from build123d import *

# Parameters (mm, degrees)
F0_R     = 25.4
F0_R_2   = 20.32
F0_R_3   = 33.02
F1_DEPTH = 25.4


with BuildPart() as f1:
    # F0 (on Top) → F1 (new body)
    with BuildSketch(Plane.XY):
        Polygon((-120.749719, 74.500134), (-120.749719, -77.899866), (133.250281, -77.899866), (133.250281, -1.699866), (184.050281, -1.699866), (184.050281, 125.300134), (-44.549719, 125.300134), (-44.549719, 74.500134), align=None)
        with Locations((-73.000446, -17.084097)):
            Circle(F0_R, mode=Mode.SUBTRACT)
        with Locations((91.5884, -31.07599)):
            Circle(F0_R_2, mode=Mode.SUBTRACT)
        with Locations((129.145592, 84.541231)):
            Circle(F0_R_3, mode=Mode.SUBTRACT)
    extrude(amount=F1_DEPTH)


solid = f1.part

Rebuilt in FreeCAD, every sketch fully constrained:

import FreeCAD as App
import Part
import Sketcher
Q = App.Units.Quantity

doc = App.newDocument("Part")
body = doc.addObject("PartDesign::Body", "Body")

# Sketch on XY plane
sketch1 = doc.addObject("Sketcher::SketchObject", "Sketch")
body.addObject(sketch1)
sketch1.AttachmentSupport = (doc.XY_Plane, [""])
sketch1.MapMode = "FlatFace"
sketch1.addGeometry([
    Part.LineSegment(App.Vector(-121, 75, 0), App.Vector(-121, -78, 0)),  # 0
    Part.LineSegment(App.Vector(-121, -78, 0), App.Vector(133, -78, 0)),  # 1
    Part.LineSegment(App.Vector(133, -78, 0), App.Vector(133, -2, 0)),  # 2
    Part.LineSegment(App.Vector(133, -2, 0), App.Vector(184, -2, 0)),  # 3
    Part.LineSegment(App.Vector(184, -2, 0), App.Vector(184, 125, 0)),  # 4
    Part.LineSegment(App.Vector(184, 125, 0), App.Vector(-45, 125, 0)),  # 5
    Part.LineSegment(App.Vector(-45, 125, 0), App.Vector(-45, 75, 0)),  # 6
    Part.LineSegment(App.Vector(-45, 75, 0), App.Vector(-121, 75, 0)),  # 7
    Part.Circle(App.Vector(-73, -17, 0), App.Vector(0, 0, 1), 25),  # 8
    Part.Circle(App.Vector(92, -31, 0), App.Vector(0, 0, 1), 20),  # 9
    Part.Circle(App.Vector(129, 85, 0), App.Vector(0, 0, 1), 33),  # 10
], False)
sketch1.addConstraint([
    Sketcher.Constraint("Coincident", 0, 2, 1, 1),
    Sketcher.Constraint("Coincident", 1, 2, 2, 1),
    Sketcher.Constraint("Coincident", 2, 2, 3, 1),
    Sketcher.Constraint("Coincident", 3, 2, 4, 1),
    Sketcher.Constraint("Coincident", 4, 2, 5, 1),
    Sketcher.Constraint("Coincident", 5, 2, 6, 1),
    Sketcher.Constraint("Coincident", 6, 2, 7, 1),
    Sketcher.Constraint("Coincident", 7, 2, 0, 1),
    Sketcher.Constraint("Vertical", 0),
    Sketcher.Constraint("Horizontal", 1),
    Sketcher.Constraint("Vertical", 2),
    Sketcher.Constraint("Horizontal", 3),
    Sketcher.Constraint("Vertical", 4),
    Sketcher.Constraint("Horizontal", 5),
    Sketcher.Constraint("Vertical", 6),
    Sketcher.Constraint("Horizontal", 7),
    Sketcher.Constraint("Equal", 7, 2),
    Sketcher.Constraint("Equal", 3, 6),
    Sketcher.Constraint("Diameter", 8, Q("2 in")),
    Sketcher.Constraint("Diameter", 9, Q("1.6 in")),
    Sketcher.Constraint("Diameter", 10, Q("2.6 in")),
    Sketcher.Constraint("DistanceX", 1, 1, 1, 2, Q("10 in")),
    Sketcher.Constraint("DistanceX", 3, 1, 3, 2, Q("2 in")),
    Sketcher.Constraint("DistanceX", 5, 2, 5, 1, Q("9 in")),
    Sketcher.Constraint("DistanceY", 0, 2, 0, 1, Q("6 in")),
    Sketcher.Constraint("DistanceX", -1, 1, 9, 3, 91.5884),
    Sketcher.Constraint("DistanceY", 9, 3, -1, 1, 31.07599),
    Sketcher.Constraint("DistanceX", -1, 1, 10, 3, 129.145592),
    Sketcher.Constraint("DistanceY", -1, 1, 10, 3, 84.541231),
    Sketcher.Constraint("DistanceX", 0, 2, -1, 1, 120.749719),
    Sketcher.Constraint("DistanceY", 0, 2, 8, 3, 60.815769),
    Sketcher.Constraint("DistanceX", 8, 3, -1, 1, 73.000446),
    Sketcher.Constraint("DistanceY", 8, 3, -1, 1, 17.084097),
])
pad1 = doc.addObject("PartDesign::Pad", "Pad")
body.addObject(pad1)
pad1.Profile = sketch1
pad1.Length = Q("1 in")

doc.recompute()
